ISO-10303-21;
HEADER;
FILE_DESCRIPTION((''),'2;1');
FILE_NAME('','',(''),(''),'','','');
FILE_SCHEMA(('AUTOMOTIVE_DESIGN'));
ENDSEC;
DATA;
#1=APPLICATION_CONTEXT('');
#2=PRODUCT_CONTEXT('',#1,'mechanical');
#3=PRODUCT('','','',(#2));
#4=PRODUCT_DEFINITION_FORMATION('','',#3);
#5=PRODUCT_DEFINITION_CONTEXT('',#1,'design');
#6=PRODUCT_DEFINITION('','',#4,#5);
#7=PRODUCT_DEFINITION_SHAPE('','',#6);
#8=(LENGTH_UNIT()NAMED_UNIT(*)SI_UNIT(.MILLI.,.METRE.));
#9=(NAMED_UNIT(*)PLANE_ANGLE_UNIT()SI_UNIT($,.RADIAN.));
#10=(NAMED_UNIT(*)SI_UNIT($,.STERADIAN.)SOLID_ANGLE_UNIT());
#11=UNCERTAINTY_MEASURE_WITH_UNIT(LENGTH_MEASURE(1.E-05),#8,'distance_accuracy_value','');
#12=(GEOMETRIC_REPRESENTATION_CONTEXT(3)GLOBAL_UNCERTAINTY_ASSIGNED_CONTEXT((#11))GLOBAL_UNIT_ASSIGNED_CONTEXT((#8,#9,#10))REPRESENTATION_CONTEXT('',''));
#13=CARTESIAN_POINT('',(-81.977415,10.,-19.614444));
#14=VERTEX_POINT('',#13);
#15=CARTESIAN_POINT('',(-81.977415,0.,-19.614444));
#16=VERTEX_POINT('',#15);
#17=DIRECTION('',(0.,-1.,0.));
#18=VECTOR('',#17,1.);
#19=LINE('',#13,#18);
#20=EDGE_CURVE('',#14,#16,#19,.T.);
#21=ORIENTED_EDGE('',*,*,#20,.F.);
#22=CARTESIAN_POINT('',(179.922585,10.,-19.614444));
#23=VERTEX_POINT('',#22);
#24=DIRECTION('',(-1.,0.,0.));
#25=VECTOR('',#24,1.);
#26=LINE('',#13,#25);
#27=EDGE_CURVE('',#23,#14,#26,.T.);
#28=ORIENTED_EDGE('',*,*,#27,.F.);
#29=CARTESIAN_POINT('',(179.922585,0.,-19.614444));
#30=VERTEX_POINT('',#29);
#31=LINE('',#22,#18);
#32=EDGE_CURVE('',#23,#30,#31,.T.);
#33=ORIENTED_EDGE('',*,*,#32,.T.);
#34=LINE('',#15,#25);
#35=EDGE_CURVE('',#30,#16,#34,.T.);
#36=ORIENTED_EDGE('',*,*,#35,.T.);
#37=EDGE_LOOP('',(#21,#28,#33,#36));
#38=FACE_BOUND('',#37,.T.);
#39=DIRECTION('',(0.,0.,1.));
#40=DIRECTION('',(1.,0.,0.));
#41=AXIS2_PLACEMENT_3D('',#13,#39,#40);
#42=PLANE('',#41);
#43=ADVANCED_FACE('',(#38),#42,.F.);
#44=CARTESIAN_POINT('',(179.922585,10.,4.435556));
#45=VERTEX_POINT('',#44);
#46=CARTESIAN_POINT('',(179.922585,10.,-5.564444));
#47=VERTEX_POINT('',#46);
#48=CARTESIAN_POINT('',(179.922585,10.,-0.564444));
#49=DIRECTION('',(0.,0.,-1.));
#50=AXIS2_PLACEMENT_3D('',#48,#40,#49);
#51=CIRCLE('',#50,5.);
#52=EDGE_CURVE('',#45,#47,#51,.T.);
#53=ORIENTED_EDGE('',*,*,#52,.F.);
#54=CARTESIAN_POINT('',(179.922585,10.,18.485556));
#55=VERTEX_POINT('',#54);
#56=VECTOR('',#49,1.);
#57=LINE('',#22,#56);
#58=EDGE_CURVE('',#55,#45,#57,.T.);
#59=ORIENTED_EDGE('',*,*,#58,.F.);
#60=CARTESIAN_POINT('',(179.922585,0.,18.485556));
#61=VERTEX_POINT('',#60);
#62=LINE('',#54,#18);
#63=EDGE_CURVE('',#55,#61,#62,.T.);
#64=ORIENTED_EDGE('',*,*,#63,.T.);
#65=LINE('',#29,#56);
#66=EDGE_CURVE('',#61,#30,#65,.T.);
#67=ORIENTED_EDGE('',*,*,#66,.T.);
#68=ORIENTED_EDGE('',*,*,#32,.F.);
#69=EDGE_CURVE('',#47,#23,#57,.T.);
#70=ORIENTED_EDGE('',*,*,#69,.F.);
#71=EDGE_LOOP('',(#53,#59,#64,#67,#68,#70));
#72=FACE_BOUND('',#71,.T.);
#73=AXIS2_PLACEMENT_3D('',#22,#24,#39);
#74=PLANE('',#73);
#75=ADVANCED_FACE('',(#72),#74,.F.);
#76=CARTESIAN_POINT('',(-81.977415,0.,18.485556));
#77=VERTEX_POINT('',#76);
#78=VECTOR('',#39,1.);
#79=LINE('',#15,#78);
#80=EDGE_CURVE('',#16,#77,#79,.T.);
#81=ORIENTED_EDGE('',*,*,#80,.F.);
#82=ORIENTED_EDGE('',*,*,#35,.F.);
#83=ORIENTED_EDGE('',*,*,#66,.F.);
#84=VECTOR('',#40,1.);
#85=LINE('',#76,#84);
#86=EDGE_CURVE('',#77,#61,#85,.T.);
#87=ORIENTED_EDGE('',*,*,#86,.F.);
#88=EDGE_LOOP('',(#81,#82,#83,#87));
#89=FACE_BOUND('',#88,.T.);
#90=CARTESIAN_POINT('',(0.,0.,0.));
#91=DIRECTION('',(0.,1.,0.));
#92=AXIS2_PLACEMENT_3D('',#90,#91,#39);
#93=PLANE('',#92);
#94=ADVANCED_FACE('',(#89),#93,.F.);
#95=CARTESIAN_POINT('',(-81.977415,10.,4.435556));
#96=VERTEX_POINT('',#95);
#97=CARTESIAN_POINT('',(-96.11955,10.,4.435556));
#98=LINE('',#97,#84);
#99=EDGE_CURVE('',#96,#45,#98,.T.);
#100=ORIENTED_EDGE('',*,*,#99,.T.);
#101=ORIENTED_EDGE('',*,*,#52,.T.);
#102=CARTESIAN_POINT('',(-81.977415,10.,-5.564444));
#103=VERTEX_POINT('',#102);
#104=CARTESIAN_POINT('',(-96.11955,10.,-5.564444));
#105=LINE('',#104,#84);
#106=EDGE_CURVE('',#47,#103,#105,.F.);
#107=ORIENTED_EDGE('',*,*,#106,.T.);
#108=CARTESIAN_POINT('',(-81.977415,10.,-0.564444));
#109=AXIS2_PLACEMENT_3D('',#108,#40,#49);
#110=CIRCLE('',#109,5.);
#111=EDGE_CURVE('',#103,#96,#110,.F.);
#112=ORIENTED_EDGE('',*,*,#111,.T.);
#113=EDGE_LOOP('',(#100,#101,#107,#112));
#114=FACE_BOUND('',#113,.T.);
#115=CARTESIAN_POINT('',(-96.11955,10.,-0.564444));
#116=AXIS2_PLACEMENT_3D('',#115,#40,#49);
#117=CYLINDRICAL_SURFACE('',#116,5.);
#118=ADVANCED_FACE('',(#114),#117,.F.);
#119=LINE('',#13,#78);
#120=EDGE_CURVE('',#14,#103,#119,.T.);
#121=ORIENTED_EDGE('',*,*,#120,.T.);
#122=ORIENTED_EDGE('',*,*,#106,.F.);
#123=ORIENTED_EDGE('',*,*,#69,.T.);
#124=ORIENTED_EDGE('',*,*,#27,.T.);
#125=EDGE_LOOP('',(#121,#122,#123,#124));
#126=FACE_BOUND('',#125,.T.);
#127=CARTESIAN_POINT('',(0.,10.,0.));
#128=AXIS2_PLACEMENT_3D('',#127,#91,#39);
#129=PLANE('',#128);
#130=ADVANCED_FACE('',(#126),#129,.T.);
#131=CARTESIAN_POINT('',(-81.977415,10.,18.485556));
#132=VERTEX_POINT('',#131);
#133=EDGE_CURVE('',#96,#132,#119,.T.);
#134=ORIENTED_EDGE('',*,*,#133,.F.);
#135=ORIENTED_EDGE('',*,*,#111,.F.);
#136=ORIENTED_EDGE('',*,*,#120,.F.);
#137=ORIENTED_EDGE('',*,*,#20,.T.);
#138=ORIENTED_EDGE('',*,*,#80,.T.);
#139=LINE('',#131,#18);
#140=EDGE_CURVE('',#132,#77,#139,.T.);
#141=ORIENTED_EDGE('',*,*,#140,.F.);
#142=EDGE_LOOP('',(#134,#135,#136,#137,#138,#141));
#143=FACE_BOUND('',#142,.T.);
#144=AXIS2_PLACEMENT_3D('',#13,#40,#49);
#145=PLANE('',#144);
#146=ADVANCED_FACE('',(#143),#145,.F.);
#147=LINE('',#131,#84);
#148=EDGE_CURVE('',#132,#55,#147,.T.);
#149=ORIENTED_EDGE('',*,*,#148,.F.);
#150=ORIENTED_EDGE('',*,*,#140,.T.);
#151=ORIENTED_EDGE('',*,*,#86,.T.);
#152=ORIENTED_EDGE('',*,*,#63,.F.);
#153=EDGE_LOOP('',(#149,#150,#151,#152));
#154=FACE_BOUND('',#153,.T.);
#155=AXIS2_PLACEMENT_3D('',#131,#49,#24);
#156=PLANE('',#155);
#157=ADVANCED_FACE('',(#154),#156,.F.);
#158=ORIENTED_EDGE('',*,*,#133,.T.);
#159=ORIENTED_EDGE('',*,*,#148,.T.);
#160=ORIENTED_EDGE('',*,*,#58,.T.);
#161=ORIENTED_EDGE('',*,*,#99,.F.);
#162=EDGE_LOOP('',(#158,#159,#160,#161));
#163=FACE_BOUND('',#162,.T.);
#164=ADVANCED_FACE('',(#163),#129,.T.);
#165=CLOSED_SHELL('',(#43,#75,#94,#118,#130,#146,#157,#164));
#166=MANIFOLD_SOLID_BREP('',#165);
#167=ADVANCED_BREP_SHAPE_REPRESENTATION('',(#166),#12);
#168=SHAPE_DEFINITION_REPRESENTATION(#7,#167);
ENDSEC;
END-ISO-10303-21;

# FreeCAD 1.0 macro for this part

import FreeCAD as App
import Part
import Sketcher

V = App.Vector
Q = App.Units.Quantity

doc = App.newDocument("Part")
body = doc.addObject("PartDesign::Body", "Body")

# Sketch on XZ plane
sketch1 = body.newObject("Sketcher::SketchObject", "Sketch")
sketch1.AttachmentSupport = (doc.getObject("XZ_Plane"), [""])
sketch1.MapMode = "FlatFace"
sketch1.addGeometry([
    Part.LineSegment(V(-82, -20, 0), V(-82, 18, 0)),
    Part.LineSegment(V(-82, 18, 0), V(180, 18, 0)),
    Part.LineSegment(V(180, 18, 0), V(180, -20, 0)),
    Part.LineSegment(V(180, -20, 0), V(-82, -20, 0)),
], False)
sketch1.addConstraint([
    Sketcher.Constraint("Coincident", 0, 2, 1, 1),
    Sketcher.Constraint("Coincident", 1, 2, 2, 1),
    Sketcher.Constraint("Coincident", 2, 2, 3, 1),
    Sketcher.Constraint("Coincident", 3, 2, 0, 1),
    Sketcher.Constraint("Vertical", 0),
    Sketcher.Constraint("Horizontal", 1),
    Sketcher.Constraint("Vertical", 2),
    Sketcher.Constraint("Horizontal", 3),
    Sketcher.Constraint("DistanceX", 1, 1, 1, 2, Q("261.9 mm")),
    Sketcher.Constraint("DistanceY", 0, 1, 0, 2, Q("38.1 mm")),
    Sketcher.Constraint("DistanceX", 0, 2, -1, 1, Q("81.977415 mm")),
    Sketcher.Constraint("DistanceY", -1, 1, 0, 2, Q("18.485556 mm")),
])
pad1 = body.newObject("PartDesign::Pad", "Pad")
pad1.Profile = sketch1
pad1.Length = 10
pad1.Reversed = True

# Sketch on YZ plane
sketch2 = body.newObject("Sketcher::SketchObject", "Sketch001")
sketch2.AttachmentSupport = (doc.getObject("YZ_Plane"), [""])
sketch2.MapMode = "FlatFace"
sketch2.AttachmentOffset = App.Placement(V(0, 0, 179.922585), App.Rotation())
sketch2.addGeometry(Part.Circle(V(10, -1, 0), V(0, 0, 1), 5), False)
sketch2.addConstraint([
    Sketcher.Constraint("Diameter", 0, Q("10 mm")),
    Sketcher.Constraint("DistanceX", -1, 1, 0, 3, Q("10 mm")),
    Sketcher.Constraint("DistanceY", 0, 3, -1, 1, Q("0.564444 mm")),
])
pocket1 = body.newObject("PartDesign::Pocket", "Pocket")
pocket1.Profile = sketch2
pocket1.Length = 261.9

doc.recompute()
